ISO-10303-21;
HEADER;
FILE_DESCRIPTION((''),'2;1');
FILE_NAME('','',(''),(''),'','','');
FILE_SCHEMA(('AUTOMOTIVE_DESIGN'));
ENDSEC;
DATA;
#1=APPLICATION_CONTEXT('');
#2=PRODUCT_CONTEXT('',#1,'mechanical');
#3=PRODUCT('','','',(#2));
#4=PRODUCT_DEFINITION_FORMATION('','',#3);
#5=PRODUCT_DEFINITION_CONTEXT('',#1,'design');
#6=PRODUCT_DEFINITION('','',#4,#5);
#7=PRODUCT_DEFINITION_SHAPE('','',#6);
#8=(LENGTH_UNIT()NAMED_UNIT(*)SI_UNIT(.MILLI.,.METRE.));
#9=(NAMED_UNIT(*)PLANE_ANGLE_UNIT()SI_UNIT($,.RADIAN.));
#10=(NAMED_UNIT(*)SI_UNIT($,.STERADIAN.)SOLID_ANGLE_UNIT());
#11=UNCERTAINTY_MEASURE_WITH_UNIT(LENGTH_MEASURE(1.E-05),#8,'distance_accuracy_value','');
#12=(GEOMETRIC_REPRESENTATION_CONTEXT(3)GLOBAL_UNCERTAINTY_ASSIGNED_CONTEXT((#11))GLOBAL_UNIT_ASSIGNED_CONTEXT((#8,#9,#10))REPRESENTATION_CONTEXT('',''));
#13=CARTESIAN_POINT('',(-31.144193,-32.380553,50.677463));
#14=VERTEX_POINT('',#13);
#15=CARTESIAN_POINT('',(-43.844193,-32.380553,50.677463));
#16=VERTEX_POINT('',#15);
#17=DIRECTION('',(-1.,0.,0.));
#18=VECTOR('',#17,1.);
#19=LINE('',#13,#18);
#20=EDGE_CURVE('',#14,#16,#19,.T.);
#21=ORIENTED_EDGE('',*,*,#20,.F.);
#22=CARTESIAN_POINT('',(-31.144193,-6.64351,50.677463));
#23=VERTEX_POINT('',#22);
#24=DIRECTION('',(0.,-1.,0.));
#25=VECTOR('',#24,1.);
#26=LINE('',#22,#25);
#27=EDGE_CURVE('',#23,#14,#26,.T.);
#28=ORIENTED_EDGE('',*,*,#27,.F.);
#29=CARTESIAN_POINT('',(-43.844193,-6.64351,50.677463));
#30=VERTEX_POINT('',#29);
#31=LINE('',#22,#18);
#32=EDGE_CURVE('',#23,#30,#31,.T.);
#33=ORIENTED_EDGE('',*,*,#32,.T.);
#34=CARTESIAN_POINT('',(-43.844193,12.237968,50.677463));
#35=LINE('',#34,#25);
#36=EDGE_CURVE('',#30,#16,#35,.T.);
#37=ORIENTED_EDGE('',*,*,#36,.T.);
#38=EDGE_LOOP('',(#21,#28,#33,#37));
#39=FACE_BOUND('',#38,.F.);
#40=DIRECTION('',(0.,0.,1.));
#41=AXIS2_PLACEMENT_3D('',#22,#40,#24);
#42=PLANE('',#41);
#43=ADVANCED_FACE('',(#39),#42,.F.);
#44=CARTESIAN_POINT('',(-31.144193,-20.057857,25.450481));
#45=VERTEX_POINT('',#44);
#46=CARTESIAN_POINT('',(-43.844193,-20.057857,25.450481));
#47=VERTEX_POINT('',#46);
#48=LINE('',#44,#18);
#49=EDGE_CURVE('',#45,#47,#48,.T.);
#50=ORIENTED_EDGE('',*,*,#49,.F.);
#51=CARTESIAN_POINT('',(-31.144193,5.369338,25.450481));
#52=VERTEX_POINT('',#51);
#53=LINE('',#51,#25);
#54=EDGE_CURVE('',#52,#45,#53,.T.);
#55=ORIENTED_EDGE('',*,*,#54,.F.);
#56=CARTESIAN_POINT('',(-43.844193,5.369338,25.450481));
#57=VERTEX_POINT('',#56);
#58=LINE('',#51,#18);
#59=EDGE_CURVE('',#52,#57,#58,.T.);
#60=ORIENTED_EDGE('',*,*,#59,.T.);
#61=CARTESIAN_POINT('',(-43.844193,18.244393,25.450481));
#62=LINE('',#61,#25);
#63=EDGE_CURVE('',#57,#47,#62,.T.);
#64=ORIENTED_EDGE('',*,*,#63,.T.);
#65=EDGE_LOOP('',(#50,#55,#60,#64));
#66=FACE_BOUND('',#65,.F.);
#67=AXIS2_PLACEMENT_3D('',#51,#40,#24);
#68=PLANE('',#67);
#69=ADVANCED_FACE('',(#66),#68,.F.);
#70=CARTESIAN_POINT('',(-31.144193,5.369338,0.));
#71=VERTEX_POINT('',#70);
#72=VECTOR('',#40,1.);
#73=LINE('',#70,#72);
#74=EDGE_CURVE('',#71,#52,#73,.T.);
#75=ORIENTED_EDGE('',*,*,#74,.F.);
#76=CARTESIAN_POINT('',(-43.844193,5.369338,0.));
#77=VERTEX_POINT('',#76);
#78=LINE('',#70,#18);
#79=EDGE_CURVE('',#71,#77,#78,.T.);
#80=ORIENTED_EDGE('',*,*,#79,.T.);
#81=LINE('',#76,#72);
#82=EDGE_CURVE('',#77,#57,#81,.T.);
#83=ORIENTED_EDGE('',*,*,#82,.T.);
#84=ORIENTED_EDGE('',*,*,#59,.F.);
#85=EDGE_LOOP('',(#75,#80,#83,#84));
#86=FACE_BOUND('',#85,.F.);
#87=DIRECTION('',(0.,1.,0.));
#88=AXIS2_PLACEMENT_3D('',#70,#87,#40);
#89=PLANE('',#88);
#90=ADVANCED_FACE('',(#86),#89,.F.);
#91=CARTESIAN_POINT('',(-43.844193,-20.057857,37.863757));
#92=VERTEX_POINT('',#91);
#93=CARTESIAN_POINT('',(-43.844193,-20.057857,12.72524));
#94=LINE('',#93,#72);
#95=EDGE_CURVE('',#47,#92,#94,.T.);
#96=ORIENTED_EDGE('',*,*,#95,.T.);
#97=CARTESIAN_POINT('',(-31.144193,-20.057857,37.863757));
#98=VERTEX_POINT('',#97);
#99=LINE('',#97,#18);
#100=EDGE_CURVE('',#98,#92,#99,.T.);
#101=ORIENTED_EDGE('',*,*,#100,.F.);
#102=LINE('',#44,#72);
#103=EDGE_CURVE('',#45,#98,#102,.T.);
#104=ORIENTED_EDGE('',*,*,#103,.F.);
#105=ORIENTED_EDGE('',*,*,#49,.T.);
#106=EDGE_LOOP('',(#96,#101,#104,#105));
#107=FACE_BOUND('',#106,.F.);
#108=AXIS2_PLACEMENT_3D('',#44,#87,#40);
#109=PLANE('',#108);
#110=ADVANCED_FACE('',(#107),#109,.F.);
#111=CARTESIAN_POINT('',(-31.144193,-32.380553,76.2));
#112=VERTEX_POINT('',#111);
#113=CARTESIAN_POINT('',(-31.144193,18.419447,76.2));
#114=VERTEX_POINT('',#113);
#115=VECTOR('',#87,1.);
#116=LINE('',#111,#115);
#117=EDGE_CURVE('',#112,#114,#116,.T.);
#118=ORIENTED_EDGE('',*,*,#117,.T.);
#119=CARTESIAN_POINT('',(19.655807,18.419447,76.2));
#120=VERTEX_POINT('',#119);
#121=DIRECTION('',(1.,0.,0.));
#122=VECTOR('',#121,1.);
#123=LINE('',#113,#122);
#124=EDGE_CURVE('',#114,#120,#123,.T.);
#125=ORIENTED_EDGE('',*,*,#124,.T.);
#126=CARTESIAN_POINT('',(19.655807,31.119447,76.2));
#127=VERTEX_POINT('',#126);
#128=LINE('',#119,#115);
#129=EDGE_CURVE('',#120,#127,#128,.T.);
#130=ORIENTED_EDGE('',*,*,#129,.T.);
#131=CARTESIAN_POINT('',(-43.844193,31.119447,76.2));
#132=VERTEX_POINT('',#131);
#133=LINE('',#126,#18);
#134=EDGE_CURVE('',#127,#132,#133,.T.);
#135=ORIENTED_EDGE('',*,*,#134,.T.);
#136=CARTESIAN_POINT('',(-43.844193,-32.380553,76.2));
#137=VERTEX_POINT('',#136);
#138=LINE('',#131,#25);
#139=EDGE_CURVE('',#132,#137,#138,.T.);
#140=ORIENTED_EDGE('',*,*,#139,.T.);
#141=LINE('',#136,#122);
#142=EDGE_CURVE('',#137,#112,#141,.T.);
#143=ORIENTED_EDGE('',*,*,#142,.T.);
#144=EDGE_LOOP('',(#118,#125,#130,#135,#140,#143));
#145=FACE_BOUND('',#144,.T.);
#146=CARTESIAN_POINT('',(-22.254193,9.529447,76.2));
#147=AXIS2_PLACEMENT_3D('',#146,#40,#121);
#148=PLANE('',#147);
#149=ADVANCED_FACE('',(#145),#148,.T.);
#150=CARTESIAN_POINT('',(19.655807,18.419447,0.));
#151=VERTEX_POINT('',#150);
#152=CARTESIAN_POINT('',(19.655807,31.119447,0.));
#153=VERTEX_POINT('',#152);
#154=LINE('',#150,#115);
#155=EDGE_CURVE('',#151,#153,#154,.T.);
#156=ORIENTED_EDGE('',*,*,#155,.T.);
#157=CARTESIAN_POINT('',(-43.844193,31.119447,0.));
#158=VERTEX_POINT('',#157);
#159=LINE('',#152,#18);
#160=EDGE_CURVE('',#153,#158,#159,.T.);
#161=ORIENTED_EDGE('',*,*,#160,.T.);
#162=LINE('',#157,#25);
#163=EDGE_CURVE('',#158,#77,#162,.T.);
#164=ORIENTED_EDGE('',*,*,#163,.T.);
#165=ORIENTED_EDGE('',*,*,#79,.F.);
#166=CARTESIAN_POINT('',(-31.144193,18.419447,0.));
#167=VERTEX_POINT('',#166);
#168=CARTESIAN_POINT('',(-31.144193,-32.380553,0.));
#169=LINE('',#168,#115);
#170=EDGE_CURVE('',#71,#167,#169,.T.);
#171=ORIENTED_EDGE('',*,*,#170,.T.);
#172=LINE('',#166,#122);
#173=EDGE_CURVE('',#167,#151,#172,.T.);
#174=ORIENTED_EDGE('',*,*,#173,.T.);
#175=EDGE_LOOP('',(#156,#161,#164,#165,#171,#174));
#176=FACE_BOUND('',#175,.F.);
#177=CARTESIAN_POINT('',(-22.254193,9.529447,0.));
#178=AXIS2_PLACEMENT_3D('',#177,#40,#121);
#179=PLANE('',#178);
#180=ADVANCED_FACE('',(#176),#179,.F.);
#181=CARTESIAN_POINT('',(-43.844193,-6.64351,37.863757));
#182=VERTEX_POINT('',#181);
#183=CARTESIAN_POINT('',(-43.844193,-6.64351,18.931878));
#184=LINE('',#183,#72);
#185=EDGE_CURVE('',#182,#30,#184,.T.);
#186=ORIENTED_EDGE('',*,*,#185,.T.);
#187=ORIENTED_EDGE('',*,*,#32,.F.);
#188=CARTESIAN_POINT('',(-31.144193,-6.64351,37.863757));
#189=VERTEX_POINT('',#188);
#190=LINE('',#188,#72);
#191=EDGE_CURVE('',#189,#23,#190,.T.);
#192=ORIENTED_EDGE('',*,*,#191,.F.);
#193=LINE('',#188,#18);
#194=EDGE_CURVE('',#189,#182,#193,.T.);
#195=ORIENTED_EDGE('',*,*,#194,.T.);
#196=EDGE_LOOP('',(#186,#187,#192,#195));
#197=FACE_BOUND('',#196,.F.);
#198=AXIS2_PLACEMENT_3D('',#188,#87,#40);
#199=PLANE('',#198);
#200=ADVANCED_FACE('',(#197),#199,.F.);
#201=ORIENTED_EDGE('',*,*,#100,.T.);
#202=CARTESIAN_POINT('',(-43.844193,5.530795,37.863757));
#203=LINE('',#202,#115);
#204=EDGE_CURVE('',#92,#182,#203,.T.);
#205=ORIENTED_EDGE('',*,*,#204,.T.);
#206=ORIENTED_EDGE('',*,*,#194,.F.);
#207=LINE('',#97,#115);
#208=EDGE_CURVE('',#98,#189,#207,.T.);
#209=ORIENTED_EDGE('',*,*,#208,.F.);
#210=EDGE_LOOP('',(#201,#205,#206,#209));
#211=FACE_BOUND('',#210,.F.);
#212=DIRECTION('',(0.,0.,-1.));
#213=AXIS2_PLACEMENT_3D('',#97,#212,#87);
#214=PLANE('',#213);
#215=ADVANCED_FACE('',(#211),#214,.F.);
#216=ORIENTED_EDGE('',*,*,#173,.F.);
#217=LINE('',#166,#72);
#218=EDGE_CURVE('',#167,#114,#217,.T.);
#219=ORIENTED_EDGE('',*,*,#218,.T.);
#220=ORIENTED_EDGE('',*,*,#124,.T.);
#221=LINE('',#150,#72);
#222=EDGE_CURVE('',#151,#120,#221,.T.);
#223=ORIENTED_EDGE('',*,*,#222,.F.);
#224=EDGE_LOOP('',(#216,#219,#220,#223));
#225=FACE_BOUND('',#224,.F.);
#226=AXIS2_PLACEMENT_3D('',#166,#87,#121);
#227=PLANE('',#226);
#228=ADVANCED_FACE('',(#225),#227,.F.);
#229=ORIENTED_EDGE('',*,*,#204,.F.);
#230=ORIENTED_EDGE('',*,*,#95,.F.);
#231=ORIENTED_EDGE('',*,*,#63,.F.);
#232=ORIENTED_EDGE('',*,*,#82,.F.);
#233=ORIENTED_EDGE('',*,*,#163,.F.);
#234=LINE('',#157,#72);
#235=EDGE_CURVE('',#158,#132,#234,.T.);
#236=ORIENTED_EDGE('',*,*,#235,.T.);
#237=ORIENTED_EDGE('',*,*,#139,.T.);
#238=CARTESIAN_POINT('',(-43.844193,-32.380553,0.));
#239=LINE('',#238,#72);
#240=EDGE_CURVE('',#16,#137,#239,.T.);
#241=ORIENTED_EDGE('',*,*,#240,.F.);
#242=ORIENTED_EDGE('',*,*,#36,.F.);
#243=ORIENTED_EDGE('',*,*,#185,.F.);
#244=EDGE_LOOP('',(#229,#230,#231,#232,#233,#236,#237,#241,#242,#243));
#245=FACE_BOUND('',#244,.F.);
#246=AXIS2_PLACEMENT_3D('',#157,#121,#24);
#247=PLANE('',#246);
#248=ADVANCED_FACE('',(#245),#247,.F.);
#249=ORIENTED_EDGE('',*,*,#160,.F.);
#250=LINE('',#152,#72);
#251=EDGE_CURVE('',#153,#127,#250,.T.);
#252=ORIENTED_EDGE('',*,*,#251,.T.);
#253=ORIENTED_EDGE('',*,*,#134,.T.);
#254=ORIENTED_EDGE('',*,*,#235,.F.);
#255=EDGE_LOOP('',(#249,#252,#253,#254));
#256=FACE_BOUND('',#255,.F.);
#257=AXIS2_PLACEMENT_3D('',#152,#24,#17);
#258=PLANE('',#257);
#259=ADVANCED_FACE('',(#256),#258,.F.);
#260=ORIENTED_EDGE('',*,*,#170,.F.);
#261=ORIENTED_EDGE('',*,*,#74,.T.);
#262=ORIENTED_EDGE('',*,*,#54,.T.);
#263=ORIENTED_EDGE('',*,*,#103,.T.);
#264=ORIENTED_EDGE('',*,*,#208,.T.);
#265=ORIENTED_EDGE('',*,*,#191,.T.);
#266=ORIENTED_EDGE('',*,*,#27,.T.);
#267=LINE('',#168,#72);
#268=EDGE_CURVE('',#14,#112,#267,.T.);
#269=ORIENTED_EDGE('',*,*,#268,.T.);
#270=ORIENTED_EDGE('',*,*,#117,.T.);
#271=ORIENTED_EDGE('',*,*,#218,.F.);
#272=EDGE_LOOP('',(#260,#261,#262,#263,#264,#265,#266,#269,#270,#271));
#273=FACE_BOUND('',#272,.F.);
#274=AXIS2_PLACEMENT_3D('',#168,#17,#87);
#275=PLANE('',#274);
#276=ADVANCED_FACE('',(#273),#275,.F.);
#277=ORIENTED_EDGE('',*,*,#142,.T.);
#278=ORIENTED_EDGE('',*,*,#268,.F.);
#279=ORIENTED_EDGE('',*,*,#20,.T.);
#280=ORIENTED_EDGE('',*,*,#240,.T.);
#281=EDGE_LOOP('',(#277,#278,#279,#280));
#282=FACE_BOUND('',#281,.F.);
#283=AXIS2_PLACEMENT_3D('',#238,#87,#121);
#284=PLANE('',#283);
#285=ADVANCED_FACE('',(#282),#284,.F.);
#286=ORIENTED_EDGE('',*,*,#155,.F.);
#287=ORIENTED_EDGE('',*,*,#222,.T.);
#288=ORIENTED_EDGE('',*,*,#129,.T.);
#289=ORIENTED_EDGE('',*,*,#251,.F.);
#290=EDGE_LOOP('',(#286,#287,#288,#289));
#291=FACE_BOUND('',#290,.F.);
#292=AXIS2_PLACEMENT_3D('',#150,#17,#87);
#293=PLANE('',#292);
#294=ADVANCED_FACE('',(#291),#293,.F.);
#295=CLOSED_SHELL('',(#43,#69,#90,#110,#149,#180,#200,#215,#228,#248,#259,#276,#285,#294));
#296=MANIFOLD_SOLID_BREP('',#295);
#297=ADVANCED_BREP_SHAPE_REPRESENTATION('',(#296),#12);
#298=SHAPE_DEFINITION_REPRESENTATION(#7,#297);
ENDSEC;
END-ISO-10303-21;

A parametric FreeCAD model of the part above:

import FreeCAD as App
import Part
import Sketcher
from FreeCAD import Vector
Q = App.Units.Quantity


def add_polygon(sketch, points):
    """Adds a closed chain of lines whose ends are joined by coincident constraints."""
    first, n = sketch.GeometryCount, len(points)
    for a, b in zip(points, points[1:] + points[:1]):
        sketch.addGeometry(Part.LineSegment(App.Vector(*a, 0), App.Vector(*b, 0)), False)
    for i in range(n):
        sketch.addConstraint(Sketcher.Constraint("Coincident", first + i, 2, first + (i + 1) % n, 1))

doc = App.newDocument("Part")
body = doc.addObject("PartDesign::Body", "Body")

# Sketch on XY plane
sketch1 = body.newObject("Sketcher::SketchObject", "Sketch")
sketch1.AttachmentSupport = (doc.getObject("XY_Plane"), [""])
sketch1.MapMode = "FlatFace"
add_polygon(sketch1, [(-44, 31), (-44, -32), (-31, -32), (-31, 18), (20, 18), (20, 31)])  # lines 0-5
sketch1.addConstraint([
    Sketcher.Constraint("Vertical", 0),
    Sketcher.Constraint("Horizontal", 1),
    Sketcher.Constraint("Vertical", 2),
    Sketcher.Constraint("Horizontal", 3),
    Sketcher.Constraint("Vertical", 4),
    Sketcher.Constraint("Horizontal", 5),
    Sketcher.Constraint("Equal", 5, 0),
    Sketcher.Constraint("Equal", 3, 2),
    Sketcher.Constraint("DistanceX", 3, 1, 3, 2, Q("2 in")),
    Sketcher.Constraint("DistanceX", 1, 1, 1, 2, Q("0.5 in")),
    Sketcher.Constraint("DistanceX", 0, 2, -1, 1, 43.844193),
    Sketcher.Constraint("DistanceY", 0, 2, -1, 1, 32.380553),
])
pad1 = body.newObject("PartDesign::Pad", "Pad")
pad1.Profile = sketch1
pad1.Length = Q("3 in")

# Sketch on YZ plane
sketch2 = body.newObject("Sketcher::SketchObject", "Sketch001")
sketch2.AttachmentSupport = (doc.getObject("YZ_Plane"), [""])
sketch2.MapMode = "FlatFace"
sketch2.AttachmentOffset = App.Placement(Vector(0, 0, -31.144193), App.Rotation())
add_polygon(sketch2, [(-32, 51), (-32, 0), (5, 0), (5, 25), (-20, 25), (-20, 38), (-7, 38), (-7, 51)])  # lines 0-7
sketch2.addConstraint([
    Sketcher.Constraint("Vertical", 0),
    Sketcher.Constraint("Horizontal", 1),
    Sketcher.Constraint("Vertical", 2),
    Sketcher.Constraint("Horizontal", 3),
    Sketcher.Constraint("Vertical", 4),
    Sketcher.Constraint("Horizontal", 5),
    Sketcher.Constraint("Vertical", 6),
    Sketcher.Constraint("Horizontal", 7),
    Sketcher.Constraint("PointOnObject", 0, 2, -1),
    Sketcher.Constraint("DistanceX", 1, 1, 1, 2, 37.749891),
    Sketcher.Constraint("DistanceY", 2, 1, 2, 2, 25.450481),
    Sketcher.Constraint("DistanceX", 3, 2, 3, 1, 25.427195),
    Sketcher.Constraint("DistanceX", 5, 1, 5, 2, 13.414347),
    Sketcher.Constraint("DistanceY", 0, 2, 0, 1, 50.677463),
    Sketcher.Constraint("DistanceY", 4, 1, 4, 2, 12.413276),
    Sketcher.Constraint("DistanceX", 5, 2, -1, 1, 6.64351),
])
pocket1 = body.newObject("PartDesign::Pocket", "Pocket")
pocket1.Profile = sketch2
pocket1.Length = Q("1 in")

doc.recompute()
